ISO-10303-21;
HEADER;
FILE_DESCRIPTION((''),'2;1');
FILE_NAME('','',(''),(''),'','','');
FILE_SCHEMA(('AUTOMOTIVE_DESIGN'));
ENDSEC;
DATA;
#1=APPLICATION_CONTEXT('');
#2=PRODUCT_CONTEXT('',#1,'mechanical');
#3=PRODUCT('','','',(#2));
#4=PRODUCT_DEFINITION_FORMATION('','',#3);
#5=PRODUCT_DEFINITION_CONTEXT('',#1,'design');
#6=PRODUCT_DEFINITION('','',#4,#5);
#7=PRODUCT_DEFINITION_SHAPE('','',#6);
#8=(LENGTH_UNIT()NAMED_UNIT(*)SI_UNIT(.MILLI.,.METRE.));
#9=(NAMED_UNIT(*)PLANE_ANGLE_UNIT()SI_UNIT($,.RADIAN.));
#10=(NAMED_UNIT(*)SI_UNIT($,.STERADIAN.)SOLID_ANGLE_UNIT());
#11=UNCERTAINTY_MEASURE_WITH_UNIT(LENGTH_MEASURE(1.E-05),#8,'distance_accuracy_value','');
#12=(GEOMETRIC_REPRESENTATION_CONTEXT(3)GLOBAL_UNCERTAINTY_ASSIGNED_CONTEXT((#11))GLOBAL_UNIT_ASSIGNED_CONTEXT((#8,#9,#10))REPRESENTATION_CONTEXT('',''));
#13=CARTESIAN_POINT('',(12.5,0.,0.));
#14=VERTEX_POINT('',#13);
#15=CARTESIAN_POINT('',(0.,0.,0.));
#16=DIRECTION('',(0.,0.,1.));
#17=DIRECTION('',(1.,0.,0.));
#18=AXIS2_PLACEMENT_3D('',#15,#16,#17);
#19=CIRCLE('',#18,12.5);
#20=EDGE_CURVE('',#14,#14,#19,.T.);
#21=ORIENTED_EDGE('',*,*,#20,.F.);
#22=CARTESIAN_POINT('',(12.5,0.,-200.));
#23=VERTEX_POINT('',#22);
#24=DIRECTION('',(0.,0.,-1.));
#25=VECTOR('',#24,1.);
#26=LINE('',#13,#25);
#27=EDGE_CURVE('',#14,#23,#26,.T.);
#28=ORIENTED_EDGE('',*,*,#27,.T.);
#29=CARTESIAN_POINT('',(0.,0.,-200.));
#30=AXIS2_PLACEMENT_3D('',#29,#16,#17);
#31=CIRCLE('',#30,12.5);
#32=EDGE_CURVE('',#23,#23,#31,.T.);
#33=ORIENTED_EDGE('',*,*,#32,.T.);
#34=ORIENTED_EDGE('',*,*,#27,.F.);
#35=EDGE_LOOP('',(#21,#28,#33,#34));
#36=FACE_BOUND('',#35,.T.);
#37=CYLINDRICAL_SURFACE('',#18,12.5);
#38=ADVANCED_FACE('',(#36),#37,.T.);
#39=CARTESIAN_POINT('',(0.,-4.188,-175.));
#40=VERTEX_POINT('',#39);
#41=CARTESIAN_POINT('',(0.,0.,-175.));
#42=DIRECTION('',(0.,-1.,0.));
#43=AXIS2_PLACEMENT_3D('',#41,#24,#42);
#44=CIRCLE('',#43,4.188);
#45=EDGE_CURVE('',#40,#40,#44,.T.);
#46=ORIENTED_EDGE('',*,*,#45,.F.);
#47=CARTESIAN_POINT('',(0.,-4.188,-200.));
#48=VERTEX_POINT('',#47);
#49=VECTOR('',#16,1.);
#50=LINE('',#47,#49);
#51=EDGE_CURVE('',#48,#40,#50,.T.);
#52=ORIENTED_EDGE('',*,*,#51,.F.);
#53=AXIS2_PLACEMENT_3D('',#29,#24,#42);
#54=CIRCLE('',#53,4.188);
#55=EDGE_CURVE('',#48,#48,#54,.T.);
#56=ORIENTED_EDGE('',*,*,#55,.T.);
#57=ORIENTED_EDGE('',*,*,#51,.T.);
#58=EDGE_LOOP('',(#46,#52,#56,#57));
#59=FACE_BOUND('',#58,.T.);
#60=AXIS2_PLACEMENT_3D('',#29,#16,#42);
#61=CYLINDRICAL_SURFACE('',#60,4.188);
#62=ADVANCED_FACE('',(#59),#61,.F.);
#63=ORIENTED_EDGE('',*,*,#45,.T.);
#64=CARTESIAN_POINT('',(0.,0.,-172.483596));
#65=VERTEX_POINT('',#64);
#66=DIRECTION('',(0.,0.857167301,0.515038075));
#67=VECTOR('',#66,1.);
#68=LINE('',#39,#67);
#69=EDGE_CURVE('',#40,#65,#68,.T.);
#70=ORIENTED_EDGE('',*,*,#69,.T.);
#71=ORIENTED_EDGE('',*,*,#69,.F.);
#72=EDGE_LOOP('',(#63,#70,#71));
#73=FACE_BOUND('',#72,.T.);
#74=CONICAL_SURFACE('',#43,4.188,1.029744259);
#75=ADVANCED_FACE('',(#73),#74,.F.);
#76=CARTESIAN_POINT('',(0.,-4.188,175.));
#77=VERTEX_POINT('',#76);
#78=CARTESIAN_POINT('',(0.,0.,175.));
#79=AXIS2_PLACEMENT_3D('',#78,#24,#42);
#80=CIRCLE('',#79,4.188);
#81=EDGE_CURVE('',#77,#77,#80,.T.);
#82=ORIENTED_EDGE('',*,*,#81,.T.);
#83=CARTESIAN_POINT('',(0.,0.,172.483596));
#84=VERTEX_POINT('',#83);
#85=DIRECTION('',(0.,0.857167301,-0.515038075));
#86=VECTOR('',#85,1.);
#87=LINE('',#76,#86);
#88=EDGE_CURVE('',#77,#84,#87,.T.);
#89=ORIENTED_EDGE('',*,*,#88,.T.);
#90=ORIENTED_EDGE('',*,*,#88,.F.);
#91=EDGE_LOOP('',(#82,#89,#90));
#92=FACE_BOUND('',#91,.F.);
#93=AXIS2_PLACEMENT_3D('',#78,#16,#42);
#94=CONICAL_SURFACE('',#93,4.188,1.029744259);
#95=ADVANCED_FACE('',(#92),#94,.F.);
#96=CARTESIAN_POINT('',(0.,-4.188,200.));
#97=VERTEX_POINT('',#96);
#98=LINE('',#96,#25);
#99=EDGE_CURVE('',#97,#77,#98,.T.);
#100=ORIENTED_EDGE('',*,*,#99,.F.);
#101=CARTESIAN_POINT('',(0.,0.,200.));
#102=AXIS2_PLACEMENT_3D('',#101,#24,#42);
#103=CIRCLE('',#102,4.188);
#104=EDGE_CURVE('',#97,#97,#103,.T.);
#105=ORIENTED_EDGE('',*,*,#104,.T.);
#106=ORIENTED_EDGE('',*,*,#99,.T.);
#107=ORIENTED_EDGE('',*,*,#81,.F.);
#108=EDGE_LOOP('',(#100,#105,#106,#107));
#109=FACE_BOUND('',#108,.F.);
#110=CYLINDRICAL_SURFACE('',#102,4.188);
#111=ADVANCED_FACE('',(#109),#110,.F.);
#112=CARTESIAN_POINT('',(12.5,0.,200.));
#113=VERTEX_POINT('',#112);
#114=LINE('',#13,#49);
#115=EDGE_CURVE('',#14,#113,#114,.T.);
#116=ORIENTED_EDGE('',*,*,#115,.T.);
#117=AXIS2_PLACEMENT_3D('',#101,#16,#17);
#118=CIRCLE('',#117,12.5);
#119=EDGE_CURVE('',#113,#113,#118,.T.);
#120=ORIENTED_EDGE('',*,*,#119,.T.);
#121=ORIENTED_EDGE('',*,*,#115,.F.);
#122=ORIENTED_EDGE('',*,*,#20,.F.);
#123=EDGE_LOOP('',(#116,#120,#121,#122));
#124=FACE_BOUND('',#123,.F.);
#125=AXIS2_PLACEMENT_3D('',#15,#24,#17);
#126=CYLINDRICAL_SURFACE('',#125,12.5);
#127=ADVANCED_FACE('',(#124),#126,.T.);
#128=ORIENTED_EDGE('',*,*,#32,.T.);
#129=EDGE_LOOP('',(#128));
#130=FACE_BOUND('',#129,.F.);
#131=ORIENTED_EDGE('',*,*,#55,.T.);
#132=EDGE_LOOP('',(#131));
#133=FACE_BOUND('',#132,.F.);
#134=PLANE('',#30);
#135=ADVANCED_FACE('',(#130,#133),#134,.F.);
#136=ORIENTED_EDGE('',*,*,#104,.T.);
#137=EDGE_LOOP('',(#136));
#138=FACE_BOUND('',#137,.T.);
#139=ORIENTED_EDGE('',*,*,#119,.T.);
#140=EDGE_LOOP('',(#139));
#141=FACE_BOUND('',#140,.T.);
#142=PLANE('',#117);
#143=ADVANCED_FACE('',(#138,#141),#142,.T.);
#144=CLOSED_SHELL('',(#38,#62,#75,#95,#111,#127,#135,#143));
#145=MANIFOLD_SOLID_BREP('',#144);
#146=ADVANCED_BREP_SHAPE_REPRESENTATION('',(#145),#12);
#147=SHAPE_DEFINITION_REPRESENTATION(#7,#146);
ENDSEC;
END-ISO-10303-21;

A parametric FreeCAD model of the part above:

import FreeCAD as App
import Part
import Sketcher
from FreeCAD import Vector

doc = App.newDocument("Part")
body = doc.addObject("PartDesign::Body", "Body")

# Sketch on XY plane
sketch1 = body.newObject("Sketcher::SketchObject", "Sketch")
sketch1.AttachmentSupport = (doc.getObject("XY_Plane"), [""])
sketch1.MapMode = "FlatFace"
sketch1.addGeometry(Part.Circle(Vector(0, 0, 0), Vector(0, 0, 1), 12), False)
sketch1.addConstraint(Sketcher.Constraint("Coincident", 0, 3, -1, 1))
sketch1.addConstraint(Sketcher.Constraint("Diameter", 0, 25.0))
pad1 = body.newObject("PartDesign::Pad", "Pad")
pad1.Profile = sketch1
pad1.Length = 400
pad1.Midplane = True

# Sketch on XY plane
sketch2 = body.newObject("Sketcher::SketchObject", "Sketch001")
sketch2.AttachmentSupport = (doc.getObject("XY_Plane"), [""])
sketch2.MapMode = "FlatFace"
sketch2.AttachmentOffset = App.Placement(Vector(0, 0, 200), App.Rotation())
sketch2.addGeometry(Part.Circle(Vector(0, 0, 0), Vector(0, 0, 1), 4.2), False)
sketch2.addConstraint(Sketcher.Constraint("Coincident", 0, 3, -1, 1))
sketch2.addConstraint(Sketcher.Constraint("Diameter", 0, 8.376))
doc.recompute()
hole = body.newObject("PartDesign::Hole", "Hole")
hole.Profile = sketch2
hole.ThreadType = "None"
hole.Diameter = 8.376
hole.DepthType = "Dimension"
hole.Depth = 25
hole.DrillPoint = "Angled"
hole.DrillPointAngle = 118
doc.recompute()

mirrored = body.newObject("PartDesign::Mirrored", "Mirrored")
mirrored.Originals = [hole]
mirrored.MirrorPlane = (doc.getObject("XY_Plane"), [""])
body.Tip = mirrored

doc.recompute()
